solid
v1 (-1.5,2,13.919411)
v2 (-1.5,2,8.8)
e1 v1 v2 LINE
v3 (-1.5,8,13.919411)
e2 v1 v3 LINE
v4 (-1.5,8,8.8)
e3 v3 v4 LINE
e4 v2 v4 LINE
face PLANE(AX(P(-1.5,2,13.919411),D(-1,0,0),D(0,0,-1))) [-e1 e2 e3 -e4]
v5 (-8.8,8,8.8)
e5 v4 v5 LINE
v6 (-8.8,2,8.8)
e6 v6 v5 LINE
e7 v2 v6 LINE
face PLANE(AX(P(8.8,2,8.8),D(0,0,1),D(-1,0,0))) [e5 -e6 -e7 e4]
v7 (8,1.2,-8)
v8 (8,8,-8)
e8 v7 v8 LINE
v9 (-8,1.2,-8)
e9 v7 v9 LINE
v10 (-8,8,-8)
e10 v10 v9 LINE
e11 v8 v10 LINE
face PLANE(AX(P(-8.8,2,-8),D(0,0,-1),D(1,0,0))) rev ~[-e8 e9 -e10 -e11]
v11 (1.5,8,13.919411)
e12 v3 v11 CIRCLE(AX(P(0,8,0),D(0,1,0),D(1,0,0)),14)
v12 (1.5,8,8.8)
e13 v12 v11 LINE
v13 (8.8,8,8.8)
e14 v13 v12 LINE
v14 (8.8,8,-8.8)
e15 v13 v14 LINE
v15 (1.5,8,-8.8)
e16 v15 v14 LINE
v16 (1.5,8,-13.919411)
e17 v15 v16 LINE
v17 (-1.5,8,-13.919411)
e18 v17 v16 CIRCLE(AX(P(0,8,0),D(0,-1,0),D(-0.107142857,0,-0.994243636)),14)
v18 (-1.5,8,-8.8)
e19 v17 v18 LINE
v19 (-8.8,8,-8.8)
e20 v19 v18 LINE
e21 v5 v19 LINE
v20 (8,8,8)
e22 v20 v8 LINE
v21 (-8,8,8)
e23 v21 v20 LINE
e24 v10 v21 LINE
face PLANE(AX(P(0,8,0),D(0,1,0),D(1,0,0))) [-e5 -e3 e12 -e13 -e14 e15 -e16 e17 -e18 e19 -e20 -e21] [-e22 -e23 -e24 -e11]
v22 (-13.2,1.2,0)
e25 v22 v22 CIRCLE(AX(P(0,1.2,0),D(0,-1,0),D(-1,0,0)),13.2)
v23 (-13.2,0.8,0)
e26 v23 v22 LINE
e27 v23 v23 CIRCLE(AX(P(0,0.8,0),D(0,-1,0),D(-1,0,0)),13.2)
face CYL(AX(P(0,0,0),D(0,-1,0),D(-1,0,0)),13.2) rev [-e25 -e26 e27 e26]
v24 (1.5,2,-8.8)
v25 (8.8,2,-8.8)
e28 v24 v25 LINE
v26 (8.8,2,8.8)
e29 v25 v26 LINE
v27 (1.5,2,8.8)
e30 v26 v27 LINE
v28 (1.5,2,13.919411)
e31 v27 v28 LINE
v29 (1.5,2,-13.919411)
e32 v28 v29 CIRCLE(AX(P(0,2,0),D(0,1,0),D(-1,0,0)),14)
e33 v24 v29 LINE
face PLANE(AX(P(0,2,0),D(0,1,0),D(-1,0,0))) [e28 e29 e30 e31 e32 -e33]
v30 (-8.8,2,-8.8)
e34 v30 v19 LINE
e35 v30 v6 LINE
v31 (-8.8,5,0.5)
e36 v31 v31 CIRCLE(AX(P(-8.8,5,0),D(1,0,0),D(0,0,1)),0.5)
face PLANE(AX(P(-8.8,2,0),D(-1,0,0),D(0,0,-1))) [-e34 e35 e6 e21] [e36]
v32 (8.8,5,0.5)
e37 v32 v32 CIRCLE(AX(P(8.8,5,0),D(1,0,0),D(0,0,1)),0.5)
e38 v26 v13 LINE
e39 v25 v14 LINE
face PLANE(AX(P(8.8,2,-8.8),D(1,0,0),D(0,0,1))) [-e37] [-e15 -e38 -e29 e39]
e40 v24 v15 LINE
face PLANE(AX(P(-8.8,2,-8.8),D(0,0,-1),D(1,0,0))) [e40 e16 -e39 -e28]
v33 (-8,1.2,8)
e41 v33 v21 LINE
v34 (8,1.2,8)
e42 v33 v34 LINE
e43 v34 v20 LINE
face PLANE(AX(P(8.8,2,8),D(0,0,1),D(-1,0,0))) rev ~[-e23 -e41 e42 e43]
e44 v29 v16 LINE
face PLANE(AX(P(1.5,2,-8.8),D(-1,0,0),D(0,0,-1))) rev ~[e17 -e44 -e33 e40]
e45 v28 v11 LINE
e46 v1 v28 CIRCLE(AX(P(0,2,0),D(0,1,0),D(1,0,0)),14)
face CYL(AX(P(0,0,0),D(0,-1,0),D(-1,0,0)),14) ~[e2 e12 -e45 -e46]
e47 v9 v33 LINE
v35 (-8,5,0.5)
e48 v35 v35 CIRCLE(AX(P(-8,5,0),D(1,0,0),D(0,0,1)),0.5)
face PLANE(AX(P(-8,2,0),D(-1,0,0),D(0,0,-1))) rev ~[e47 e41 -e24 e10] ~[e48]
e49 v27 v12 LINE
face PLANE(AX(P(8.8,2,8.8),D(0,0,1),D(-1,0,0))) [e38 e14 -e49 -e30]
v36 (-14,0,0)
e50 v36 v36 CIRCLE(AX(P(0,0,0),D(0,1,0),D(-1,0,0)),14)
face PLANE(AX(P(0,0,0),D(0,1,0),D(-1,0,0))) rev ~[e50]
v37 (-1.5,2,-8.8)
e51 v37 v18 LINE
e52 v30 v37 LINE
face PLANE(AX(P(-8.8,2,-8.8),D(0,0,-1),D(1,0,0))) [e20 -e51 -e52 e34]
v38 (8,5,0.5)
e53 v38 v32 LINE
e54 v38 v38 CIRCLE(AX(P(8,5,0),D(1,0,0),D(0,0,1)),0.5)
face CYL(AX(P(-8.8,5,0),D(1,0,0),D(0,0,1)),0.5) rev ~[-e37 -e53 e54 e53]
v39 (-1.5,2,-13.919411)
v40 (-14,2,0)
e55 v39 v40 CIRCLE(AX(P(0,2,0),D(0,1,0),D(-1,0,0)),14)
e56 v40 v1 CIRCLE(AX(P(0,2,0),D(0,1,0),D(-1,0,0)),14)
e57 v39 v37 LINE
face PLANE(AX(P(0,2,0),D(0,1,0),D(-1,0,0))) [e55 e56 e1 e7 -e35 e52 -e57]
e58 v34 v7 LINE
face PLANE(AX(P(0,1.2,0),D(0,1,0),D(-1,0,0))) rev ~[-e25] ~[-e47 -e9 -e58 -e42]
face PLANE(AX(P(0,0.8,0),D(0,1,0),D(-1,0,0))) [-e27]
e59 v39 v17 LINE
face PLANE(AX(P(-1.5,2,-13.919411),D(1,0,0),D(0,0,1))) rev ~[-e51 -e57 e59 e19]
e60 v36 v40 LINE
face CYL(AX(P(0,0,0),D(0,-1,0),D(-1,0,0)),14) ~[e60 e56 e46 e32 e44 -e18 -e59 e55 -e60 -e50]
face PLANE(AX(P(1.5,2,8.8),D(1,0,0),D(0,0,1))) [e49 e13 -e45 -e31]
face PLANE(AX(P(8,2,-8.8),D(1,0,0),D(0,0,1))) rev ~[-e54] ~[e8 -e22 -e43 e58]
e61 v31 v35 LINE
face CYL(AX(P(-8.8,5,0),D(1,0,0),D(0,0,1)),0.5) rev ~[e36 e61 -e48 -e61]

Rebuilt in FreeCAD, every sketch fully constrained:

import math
import FreeCAD as App
import Part
import Sketcher

V = App.Vector
Q = App.Units.Quantity


def faces_at(feature, points):
    """Names of the faces that lie closest to the given points."""
    faces = feature.Shape.Faces
    near = lambda p: min(range(len(faces)), key=lambda i: faces[i].distToShape(Part.Vertex(*p))[0])
    return sorted({f"Face{near(p) + 1}" for p in points})


def add_polygon(sketch, points):
    """Adds a closed chain of lines whose ends are joined by coincident constraints."""
    first, n = sketch.GeometryCount, len(points)
    for a, b in zip(points, points[1:] + points[:1]):
        sketch.addGeometry(Part.LineSegment(App.Vector(*a, 0), App.Vector(*b, 0)), False)
    for i in range(n):
        sketch.addConstraint(Sketcher.Constraint("Coincident", first + i, 2, first + (i + 1) % n, 1))

doc = App.newDocument("Part")
body = doc.addObject("PartDesign::Body", "Body")

# Sketch on XZ plane
sketch1 = body.newObject("Sketcher::SketchObject", "Sketch")
sketch1.AttachmentSupport = (doc.getObject("XZ_Plane"), [""])
sketch1.MapMode = "FlatFace"
sketch1.addGeometry(Part.Circle(V(0, 0, 0), V(0, 0, 1), 14), False)
sketch1.addConstraint([
    Sketcher.Constraint("Coincident", 0, 3, -1, 1),
    Sketcher.Constraint("Diameter", 0, Q("28 mm")),
])
pad1 = body.newObject("PartDesign::Pad", "Pad")
pad1.Profile = sketch1
pad1.Length = 2
pad1.Reversed = True

# Sketch on XZ plane
sketch2 = body.newObject("Sketcher::SketchObject", "Sketch001")
sketch2.AttachmentSupport = (doc.getObject("XZ_Plane"), [""])
sketch2.MapMode = "FlatFace"
sketch2.AttachmentOffset = App.Placement(V(0, 0, -2), App.Rotation())
add_polygon(sketch2, [(-8.8, -8.8), (-8.8, 8.8), (8.8, 8.8), (8.8, -8.8)])  # lines 0-3
sketch2.addConstraint([
    Sketcher.Constraint("Vertical", 0),
    Sketcher.Constraint("Horizontal", 1),
    Sketcher.Constraint("Vertical", 2),
    Sketcher.Constraint("Horizontal", 3),
    Sketcher.Constraint("Symmetric", 0, 2, 2, 2, -1, 1),
    Sketcher.Constraint("Equal", 3, 0),
    Sketcher.Constraint("DistanceX", 1, 1, 1, 2, Q("17.6 mm")),
])
pad2 = body.newObject("PartDesign::Pad", "Pad001")
pad2.Profile = sketch2
pad2.Length = 6
pad2.Reversed = True
doc.recompute()

thickness = body.newObject("PartDesign::Thickness", "Thickness")
thickness.Base = (pad2, faces_at(pad2, [(-2.933, 8, -2.933)]))
thickness.Value = 0.8
thickness.Reversed = True
thickness.Join = "Intersection"

# Sketch on YZ plane
sketch3 = body.newObject("Sketcher::SketchObject", "Sketch002")
sketch3.AttachmentSupport = (doc.getObject("YZ_Plane"), [""])
sketch3.MapMode = "FlatFace"
sketch3.AttachmentOffset = App.Placement(V(0, 0, -8.8), App.Rotation())
sketch3.addGeometry(Part.Circle(V(5, 0, 0), V(0, 0, 1), 0.5), False)
sketch3.addConstraint([
    Sketcher.Constraint("PointOnObject", 0, 3, -1),
    Sketcher.Constraint("Diameter", 0, Q("1 mm")),
    Sketcher.Constraint("DistanceX", -1, 1, 0, 3, Q("5 mm")),
])
doc.recompute()
hole = body.newObject("PartDesign::Hole", "Hole")
hole.Profile = sketch3
hole.ThreadType = "None"
hole.Diameter = 1
hole.DepthType = "Dimension"
hole.Depth = 20
hole.DrillPoint = "Flat"
hole.Reversed = True

# Sketch on XZ plane
sketch4 = body.newObject("Sketcher::SketchObject", "Sketch003")
sketch4.AttachmentSupport = (doc.getObject("XZ_Plane"), [""])
sketch4.MapMode = "FlatFace"
sketch4.AttachmentOffset = App.Placement(V(0, 0, -2), App.Rotation())
sketch4.addGeometry([
    Part.LineSegment(V(1.5, 8.8, 0), V(-1.5, 8.8, 0)),
    Part.LineSegment(V(-1.5, 8.8, 0), V(-1.5, 13.919411, 0)),
    Part.ArcOfCircle(Part.Circle(V(0, 0, 0), V(0, 0, 1), 14), math.radians(83.84936), math.radians(96.15064)),
    Part.LineSegment(V(1.5, 13.919411, 0), V(1.5, 8.8, 0)),
], False)
sketch4.addConstraint([
    Sketcher.Constraint("Coincident", 0, 2, 1, 1),
    Sketcher.Constraint("Coincident", 1, 2, 2, 2),
    Sketcher.Constraint("Coincident", 2, 1, 3, 1),
    Sketcher.Constraint("Coincident", 3, 2, 0, 1),
    Sketcher.Constraint("Horizontal", 0),
    Sketcher.Constraint("Vertical", 1),
    Sketcher.Constraint("Vertical", 3),
    Sketcher.Constraint("Coincident", 2, 3, -1, 1),
    Sketcher.Constraint("Horizontal", 1, 2, 2, 1),
    Sketcher.Constraint("DistanceX", 0, 2, 0, 1, Q("3 mm")),
    Sketcher.Constraint("Radius", 2, Q("14 mm")),
    Sketcher.Constraint("DistanceY", -1, 1, 0, 2, Q("8.8 mm")),
])
pad3 = body.newObject("PartDesign::Pad", "Pad002")
pad3.Profile = sketch4
pad3.Length = 6
pad3.Reversed = True

# Sketch on XZ plane
sketch5 = body.newObject("Sketcher::SketchObject", "Sketch004")
sketch5.AttachmentSupport = (doc.getObject("XZ_Plane"), [""])
sketch5.MapMode = "FlatFace"
sketch5.AttachmentOffset = App.Placement(V(0, 0, -2), App.Rotation())
sketch5.addGeometry([
    Part.LineSegment(V(1.5, -8.8, 0), V(1.5, -13.919411, 0)),
    Part.ArcOfCircle(Part.Circle(V(0, 0, 0), V(0, 0, 1), 14), math.radians(-96.15064), math.radians(-83.84936)),
    Part.LineSegment(V(-1.5, -13.919411, 0), V(-1.5, -8.8, 0)),
    Part.LineSegment(V(-1.5, -8.8, 0), V(1.5, -8.8, 0)),
], False)
sketch5.addConstraint([
    Sketcher.Constraint("Coincident", 0, 2, 1, 2),
    Sketcher.Constraint("Coincident", 1, 1, 2, 1),
    Sketcher.Constraint("Coincident", 2, 2, 3, 1),
    Sketcher.Constraint("Coincident", 3, 2, 0, 1),
    Sketcher.Constraint("Vertical", 0),
    Sketcher.Constraint("Vertical", 2),
    Sketcher.Constraint("Horizontal", 3),
    Sketcher.Constraint("Coincident", 1, 3, -1, 1),
    Sketcher.Constraint("Horizontal", 0, 2, 1, 1),
    Sketcher.Constraint("DistanceX", 3, 1, 3, 2, Q("3 mm")),
    Sketcher.Constraint("Radius", 1, Q("14 mm")),
    Sketcher.Constraint("DistanceY", 2, 2, -1, 1, Q("8.8 mm")),
])
pad4 = body.newObject("PartDesign::Pad", "Pad003")
pad4.Profile = sketch5
pad4.Length = 6
pad4.Reversed = True

doc.recompute()
